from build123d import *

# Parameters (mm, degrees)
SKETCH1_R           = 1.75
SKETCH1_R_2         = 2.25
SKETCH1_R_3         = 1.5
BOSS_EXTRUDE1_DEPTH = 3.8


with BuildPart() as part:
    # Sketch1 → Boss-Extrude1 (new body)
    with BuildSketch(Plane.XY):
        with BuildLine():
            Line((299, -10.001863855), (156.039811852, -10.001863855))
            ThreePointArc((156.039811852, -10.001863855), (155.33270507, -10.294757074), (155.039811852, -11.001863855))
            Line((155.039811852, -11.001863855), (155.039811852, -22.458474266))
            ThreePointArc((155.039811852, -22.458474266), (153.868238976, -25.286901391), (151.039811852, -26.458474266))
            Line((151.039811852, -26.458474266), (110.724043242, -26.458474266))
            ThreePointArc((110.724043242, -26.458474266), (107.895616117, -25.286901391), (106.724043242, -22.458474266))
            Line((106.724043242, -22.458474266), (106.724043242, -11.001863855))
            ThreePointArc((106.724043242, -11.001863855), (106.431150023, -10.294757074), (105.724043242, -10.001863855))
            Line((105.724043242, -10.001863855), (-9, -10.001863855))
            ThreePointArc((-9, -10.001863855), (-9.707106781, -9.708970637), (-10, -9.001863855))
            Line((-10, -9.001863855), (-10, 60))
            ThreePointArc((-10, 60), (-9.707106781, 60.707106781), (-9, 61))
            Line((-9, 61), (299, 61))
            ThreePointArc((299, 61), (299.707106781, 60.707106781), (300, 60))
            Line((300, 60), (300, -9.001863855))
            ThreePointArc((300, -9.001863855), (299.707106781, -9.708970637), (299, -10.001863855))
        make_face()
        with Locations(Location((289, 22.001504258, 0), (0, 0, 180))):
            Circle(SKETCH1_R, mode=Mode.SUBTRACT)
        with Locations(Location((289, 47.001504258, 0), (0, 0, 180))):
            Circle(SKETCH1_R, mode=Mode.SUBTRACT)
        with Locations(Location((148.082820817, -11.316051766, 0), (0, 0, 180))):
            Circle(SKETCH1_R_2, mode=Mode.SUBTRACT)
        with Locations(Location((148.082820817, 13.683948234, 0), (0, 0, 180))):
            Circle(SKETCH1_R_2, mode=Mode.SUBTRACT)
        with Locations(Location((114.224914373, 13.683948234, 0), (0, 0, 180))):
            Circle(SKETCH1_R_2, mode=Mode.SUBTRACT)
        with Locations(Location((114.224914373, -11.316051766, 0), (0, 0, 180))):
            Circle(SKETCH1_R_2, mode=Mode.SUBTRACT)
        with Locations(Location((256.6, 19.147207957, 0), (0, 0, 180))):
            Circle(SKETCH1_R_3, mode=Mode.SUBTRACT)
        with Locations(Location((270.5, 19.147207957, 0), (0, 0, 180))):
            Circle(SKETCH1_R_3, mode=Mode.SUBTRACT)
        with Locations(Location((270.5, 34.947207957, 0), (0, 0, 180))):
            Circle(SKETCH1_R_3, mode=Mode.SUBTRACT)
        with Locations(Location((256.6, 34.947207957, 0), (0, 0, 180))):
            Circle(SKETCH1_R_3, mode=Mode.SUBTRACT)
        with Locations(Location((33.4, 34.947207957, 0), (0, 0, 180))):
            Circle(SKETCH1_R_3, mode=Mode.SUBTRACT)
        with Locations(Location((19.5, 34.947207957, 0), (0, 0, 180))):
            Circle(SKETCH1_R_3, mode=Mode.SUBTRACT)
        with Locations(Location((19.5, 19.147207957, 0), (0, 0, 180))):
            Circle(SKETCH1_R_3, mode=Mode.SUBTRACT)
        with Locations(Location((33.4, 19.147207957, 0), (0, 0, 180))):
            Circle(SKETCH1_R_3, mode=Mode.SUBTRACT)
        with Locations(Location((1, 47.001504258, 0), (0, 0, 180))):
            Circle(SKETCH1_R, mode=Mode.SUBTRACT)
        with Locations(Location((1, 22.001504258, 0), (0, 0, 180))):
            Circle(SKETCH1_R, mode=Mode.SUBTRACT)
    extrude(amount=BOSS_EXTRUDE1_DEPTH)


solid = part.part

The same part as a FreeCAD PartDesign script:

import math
import FreeCAD as App
import Part
import Sketcher
Q = App.Units.Quantity

doc = App.newDocument("Part")
body = doc.addObject("PartDesign::Body", "Body")

# Sketch on XY plane
sketch1 = body.newObject("Sketcher::SketchObject", "Sketch")
sketch1.AttachmentSupport = (doc.getObject("XY_Plane"), [""])
sketch1.MapMode = "FlatFace"
sketch1.addGeometry(Part.LineSegment(App.Vector(156, -10, 0), App.Vector(299, -10, 0)), False)
sketch1.addGeometry(Part.ArcOfCircle(Part.Circle(App.Vector(299, -9, 0), App.Vector(0, 0, 1), 1), math.radians(-90), math.radians(0)), False)
sketch1.addGeometry(Part.LineSegment(App.Vector(300, -9, 0), App.Vector(300, 60, 0)), False)
sketch1.addGeometry(Part.ArcOfCircle(Part.Circle(App.Vector(299, 60, 0), App.Vector(0, 0, 1), 1), math.radians(0), math.radians(90)), False)
sketch1.addGeometry(Part.LineSegment(App.Vector(299, 61, 0), App.Vector(-9, 61, 0)), False)
sketch1.addGeometry(Part.ArcOfCircle(Part.Circle(App.Vector(-9, 60, 0), App.Vector(0, 0, 1), 1), math.radians(90), math.radians(180)), False)
sketch1.addGeometry(Part.LineSegment(App.Vector(-10, 60, 0), App.Vector(-10, -9, 0)), False)
sketch1.addGeometry(Part.ArcOfCircle(Part.Circle(App.Vector(-9, -9, 0), App.Vector(0, 0, 1), 1), math.radians(180), math.radians(270)), False)
sketch1.addGeometry(Part.LineSegment(App.Vector(-9, -10, 0), App.Vector(105.7, -10, 0)), False)
sketch1.addGeometry(Part.ArcOfCircle(Part.Circle(App.Vector(105.7, -11, 0), App.Vector(0, 0, 1), 1), math.radians(0), math.radians(90)), False)
sketch1.addGeometry(Part.LineSegment(App.Vector(106.7, -11, 0), App.Vector(106.7, -22.5, 0)), False)
sketch1.addGeometry(Part.ArcOfCircle(Part.Circle(App.Vector(110.7, -22.5, 0), App.Vector(0, 0, 1), 4), math.radians(180), math.radians(270)), False)
sketch1.addGeometry(Part.LineSegment(App.Vector(110.7, -26.5, 0), App.Vector(151, -26.5, 0)), False)
sketch1.addGeometry(Part.ArcOfCircle(Part.Circle(App.Vector(151, -22.5, 0), App.Vector(0, 0, 1), 4), math.radians(-90), math.radians(0)), False)
sketch1.addGeometry(Part.LineSegment(App.Vector(155, -22.5, 0), App.Vector(155, -11, 0)), False)
sketch1.addGeometry(Part.ArcOfCircle(Part.Circle(App.Vector(156, -11, 0), App.Vector(0, 0, 1), 1), math.radians(90), math.radians(180)), False)
sketch1.addGeometry(Part.Circle(App.Vector(148.1, -11.3, 0), App.Vector(0, 0, 1), 2.2), False)
sketch1.addGeometry(Part.Circle(App.Vector(148.1, 13.7, 0), App.Vector(0, 0, 1), 2.2), False)
sketch1.addGeometry(Part.Circle(App.Vector(114.2, -11.3, 0), App.Vector(0, 0, 1), 2.2), False)
sketch1.addGeometry(Part.Circle(App.Vector(114.2, 13.7, 0), App.Vector(0, 0, 1), 2.2), False)
sketch1.addGeometry(Part.Circle(App.Vector(270.5, 19.1, 0), App.Vector(0, 0, 1), 1.5), False)
sketch1.addGeometry(Part.Circle(App.Vector(256.6, 19.1, 0), App.Vector(0, 0, 1), 1.5), False)
sketch1.addGeometry(Part.Circle(App.Vector(289, 22, 0), App.Vector(0, 0, 1), 1.8), False)
sketch1.addGeometry(Part.Circle(App.Vector(270.5, 34.9, 0), App.Vector(0, 0, 1), 1.5), False)
sketch1.addGeometry(Part.Circle(App.Vector(256.6, 34.9, 0), App.Vector(0, 0, 1), 1.5), False)
sketch1.addGeometry(Part.Circle(App.Vector(289, 47, 0), App.Vector(0, 0, 1), 1.8), False)
sketch1.addGeometry(Part.Circle(App.Vector(33.4, 19.1, 0), App.Vector(0, 0, 1), 1.5), False)
sketch1.addGeometry(Part.Circle(App.Vector(19.5, 19.1, 0), App.Vector(0, 0, 1), 1.5), False)
sketch1.addGeometry(Part.Circle(App.Vector(1, 22, 0), App.Vector(0, 0, 1), 1.8), False)
sketch1.addGeometry(Part.Circle(App.Vector(33.4, 34.9, 0), App.Vector(0, 0, 1), 1.5), False)
sketch1.addGeometry(Part.Circle(App.Vector(19.5, 34.9, 0), App.Vector(0, 0, 1), 1.5), False)
sketch1.addGeometry(Part.Circle(App.Vector(1, 47, 0), App.Vector(0, 0, 1), 1.8), False)
sketch1.addConstraint(Sketcher.Constraint("Tangent", 0, 2, 1, 1))
sketch1.addConstraint(Sketcher.Constraint("Tangent", 1, 2, 2, 1))
sketch1.addConstraint(Sketcher.Constraint("Tangent", 2, 2, 3, 1))
sketch1.addConstraint(Sketcher.Constraint("Tangent", 3, 2, 4, 1))
sketch1.addConstraint(Sketcher.Constraint("Tangent", 4, 2, 5, 1))
sketch1.addConstraint(Sketcher.Constraint("Tangent", 5, 2, 6, 1))
sketch1.addConstraint(Sketcher.Constraint("Tangent", 6, 2, 7, 1))
sketch1.addConstraint(Sketcher.Constraint("Tangent", 7, 2, 8, 1))
sketch1.addConstraint(Sketcher.Constraint("Tangent", 8, 2, 9, 2))
sketch1.addConstraint(Sketcher.Constraint("Tangent", 9, 1, 10, 1))
sketch1.addConstraint(Sketcher.Constraint("Tangent", 10, 2, 11, 1))
sketch1.addConstraint(Sketcher.Constraint("Tangent", 11, 2, 12, 1))
sketch1.addConstraint(Sketcher.Constraint("Tangent", 12, 2, 13, 1))
sketch1.addConstraint(Sketcher.Constraint("Tangent", 13, 2, 14, 1))
sketch1.addConstraint(Sketcher.Constraint("Tangent", 14, 2, 15, 2))
sketch1.addConstraint(Sketcher.Constraint("Tangent", 15, 1, 0, 1))
sketch1.addConstraint(Sketcher.Constraint("Horizontal", 0))
sketch1.addConstraint(Sketcher.Constraint("Vertical", 2))
sketch1.addConstraint(Sketcher.Constraint("Horizontal", 4))
sketch1.addConstraint(Sketcher.Constraint("Vertical", 6))
sketch1.addConstraint(Sketcher.Constraint("Horizontal", 8))
sketch1.addConstraint(Sketcher.Constraint("Vertical", 10))
sketch1.addConstraint(Sketcher.Constraint("Horizontal", 12))
sketch1.addConstraint(Sketcher.Constraint("Vertical", 14))
sketch1.addConstraint(Sketcher.Constraint("Equal", 1, 3))
sketch1.addConstraint(Sketcher.Constraint("Equal", 3, 5))
sketch1.addConstraint(Sketcher.Constraint("Equal", 5, 7))
sketch1.addConstraint(Sketcher.Constraint("Equal", 7, 9))
sketch1.addConstraint(Sketcher.Constraint("Equal", 11, 13))
sketch1.addConstraint(Sketcher.Constraint("Equal", 9, 15))
sketch1.addConstraint(Sketcher.Constraint("Equal", 16, 17))
sketch1.addConstraint(Sketcher.Constraint("Equal", 17, 18))
sketch1.addConstraint(Sketcher.Constraint("Equal", 18, 19))
sketch1.addConstraint(Sketcher.Constraint("Equal", 20, 21))
sketch1.addConstraint(Sketcher.Constraint("Equal", 21, 23))
sketch1.addConstraint(Sketcher.Constraint("Equal", 23, 24))
sketch1.addConstraint(Sketcher.Constraint("Equal", 22, 25))
sketch1.addConstraint(Sketcher.Constraint("Equal", 24, 26))
sketch1.addConstraint(Sketcher.Constraint("Equal", 26, 27))
sketch1.addConstraint(Sketcher.Constraint("Equal", 25, 28))
sketch1.addConstraint(Sketcher.Constraint("Equal", 27, 29))
sketch1.addConstraint(Sketcher.Constraint("Equal", 29, 30))
sketch1.addConstraint(Sketcher.Constraint("Equal", 28, 31))
sketch1.addConstraint(Sketcher.Constraint("Horizontal", 1, 3, 7, 3))
sketch1.addConstraint(Sketcher.Constraint("Horizontal", 16, 3, 18, 3))
sketch1.addConstraint(Sketcher.Constraint("Horizontal", 17, 3, 19, 3))
sketch1.addConstraint(Sketcher.Constraint("Horizontal", 20, 3, 21, 3))
sketch1.addConstraint(Sketcher.Constraint("Horizontal", 23, 3, 24, 3))
sketch1.addConstraint(Sketcher.Constraint("Horizontal", 21, 3, 26, 3))
sketch1.addConstraint(Sketcher.Constraint("Horizontal", 26, 3, 27, 3))
sketch1.addConstraint(Sketcher.Constraint("Horizontal", 22, 3, 28, 3))
sketch1.addConstraint(Sketcher.Constraint("Horizontal", 24, 3, 29, 3))
sketch1.addConstraint(Sketcher.Constraint("Horizontal", 29, 3, 30, 3))
sketch1.addConstraint(Sketcher.Constraint("Horizontal", 25, 3, 31, 3))
sketch1.addConstraint(Sketcher.Constraint("Vertical", 16, 3, 17, 3))
sketch1.addConstraint(Sketcher.Constraint("Vertical", 18, 3, 19, 3))
sketch1.addConstraint(Sketcher.Constraint("Vertical", 20, 3, 23, 3))
sketch1.addConstraint(Sketcher.Constraint("Vertical", 21, 3, 24, 3))
sketch1.addConstraint(Sketcher.Constraint("Vertical", 22, 3, 25, 3))
sketch1.addConstraint(Sketcher.Constraint("Vertical", 26, 3, 29, 3))
sketch1.addConstraint(Sketcher.Constraint("Vertical", 27, 3, 30, 3))
sketch1.addConstraint(Sketcher.Constraint("Vertical", 28, 3, 31, 3))
sketch1.addConstraint(Sketcher.Constraint("Diameter", 20, Q("3 mm")))
sketch1.addConstraint(Sketcher.Constraint("Radius", 1, Q("1 mm")))
sketch1.addConstraint(Sketcher.Constraint("Radius", 11, Q("4 mm")))
sketch1.addConstraint(Sketcher.Constraint("Diameter", 16, Q("4.5 mm")))
sketch1.addConstraint(Sketcher.Constraint("Diameter", 22, Q("3.5 mm")))
sketch1.addConstraint(Sketcher.Constraint("DistanceX", 4, 2, 4, 1, Q("308 mm")))
sketch1.addConstraint(Sketcher.Constraint("DistanceX", -1, 1, 1, 3, Q("299 mm")))
sketch1.addConstraint(Sketcher.Constraint("DistanceY", -1, 1, 3, 3, Q("60 mm")))
sketch1.addConstraint(Sketcher.Constraint("DistanceX", -1, 1, 22, 3, Q("289 mm")))
sketch1.addConstraint(Sketcher.Constraint("DistanceX", -1, 1, 28, 3, Q("1 mm")))
sketch1.addConstraint(Sketcher.Constraint("DistanceY", 16, 3, 17, 3, Q("25 mm")))
sketch1.addConstraint(Sketcher.Constraint("DistanceY", 22, 3, 25, 3, Q("25 mm")))
sketch1.addConstraint(Sketcher.Constraint("DistanceX", -1, 1, 20, 3, Q("270.5 mm")))
sketch1.addConstraint(Sketcher.Constraint("DistanceX", -1, 1, 21, 3, Q("256.6 mm")))
sketch1.addConstraint(Sketcher.Constraint("DistanceX", -1, 1, 26, 3, Q("33.4 mm")))
sketch1.addConstraint(Sketcher.Constraint("DistanceX", -1, 1, 27, 3, Q("19.5 mm")))
sketch1.addConstraint(Sketcher.Constraint("DistanceY", 20, 3, 23, 3, Q("15.8 mm")))
sketch1.addConstraint(Sketcher.Constraint("DistanceX", 0, 1, 0, 2, Q("142.960188 mm")))
sketch1.addConstraint(Sketcher.Constraint("DistanceX", 12, 1, 12, 2, Q("40.315769 mm")))
sketch1.addConstraint(Sketcher.Constraint("DistanceY", 10, 2, 10, 1, Q("11.45661 mm")))
sketch1.addConstraint(Sketcher.Constraint("DistanceY", 2, 1, 2, 2, Q("69.001864 mm")))
sketch1.addConstraint(Sketcher.Constraint("DistanceX", -1, 1, 16, 3, Q("148.082821 mm")))
sketch1.addConstraint(Sketcher.Constraint("DistanceY", 16, 3, -1, 1, Q("11.316052 mm")))
sketch1.addConstraint(Sketcher.Constraint("DistanceX", 9, 3, 18, 3, Q("8.500871 mm")))
sketch1.addConstraint(Sketcher.Constraint("DistanceY", 1, 3, 20, 3, Q("28.149072 mm")))
sketch1.addConstraint(Sketcher.Constraint("DistanceY", 1, 3, 22, 3, Q("31.003368 mm")))
pad1 = body.newObject("PartDesign::Pad", "Pad")
pad1.Profile = sketch1
pad1.Length = 3.8

doc.recompute()
